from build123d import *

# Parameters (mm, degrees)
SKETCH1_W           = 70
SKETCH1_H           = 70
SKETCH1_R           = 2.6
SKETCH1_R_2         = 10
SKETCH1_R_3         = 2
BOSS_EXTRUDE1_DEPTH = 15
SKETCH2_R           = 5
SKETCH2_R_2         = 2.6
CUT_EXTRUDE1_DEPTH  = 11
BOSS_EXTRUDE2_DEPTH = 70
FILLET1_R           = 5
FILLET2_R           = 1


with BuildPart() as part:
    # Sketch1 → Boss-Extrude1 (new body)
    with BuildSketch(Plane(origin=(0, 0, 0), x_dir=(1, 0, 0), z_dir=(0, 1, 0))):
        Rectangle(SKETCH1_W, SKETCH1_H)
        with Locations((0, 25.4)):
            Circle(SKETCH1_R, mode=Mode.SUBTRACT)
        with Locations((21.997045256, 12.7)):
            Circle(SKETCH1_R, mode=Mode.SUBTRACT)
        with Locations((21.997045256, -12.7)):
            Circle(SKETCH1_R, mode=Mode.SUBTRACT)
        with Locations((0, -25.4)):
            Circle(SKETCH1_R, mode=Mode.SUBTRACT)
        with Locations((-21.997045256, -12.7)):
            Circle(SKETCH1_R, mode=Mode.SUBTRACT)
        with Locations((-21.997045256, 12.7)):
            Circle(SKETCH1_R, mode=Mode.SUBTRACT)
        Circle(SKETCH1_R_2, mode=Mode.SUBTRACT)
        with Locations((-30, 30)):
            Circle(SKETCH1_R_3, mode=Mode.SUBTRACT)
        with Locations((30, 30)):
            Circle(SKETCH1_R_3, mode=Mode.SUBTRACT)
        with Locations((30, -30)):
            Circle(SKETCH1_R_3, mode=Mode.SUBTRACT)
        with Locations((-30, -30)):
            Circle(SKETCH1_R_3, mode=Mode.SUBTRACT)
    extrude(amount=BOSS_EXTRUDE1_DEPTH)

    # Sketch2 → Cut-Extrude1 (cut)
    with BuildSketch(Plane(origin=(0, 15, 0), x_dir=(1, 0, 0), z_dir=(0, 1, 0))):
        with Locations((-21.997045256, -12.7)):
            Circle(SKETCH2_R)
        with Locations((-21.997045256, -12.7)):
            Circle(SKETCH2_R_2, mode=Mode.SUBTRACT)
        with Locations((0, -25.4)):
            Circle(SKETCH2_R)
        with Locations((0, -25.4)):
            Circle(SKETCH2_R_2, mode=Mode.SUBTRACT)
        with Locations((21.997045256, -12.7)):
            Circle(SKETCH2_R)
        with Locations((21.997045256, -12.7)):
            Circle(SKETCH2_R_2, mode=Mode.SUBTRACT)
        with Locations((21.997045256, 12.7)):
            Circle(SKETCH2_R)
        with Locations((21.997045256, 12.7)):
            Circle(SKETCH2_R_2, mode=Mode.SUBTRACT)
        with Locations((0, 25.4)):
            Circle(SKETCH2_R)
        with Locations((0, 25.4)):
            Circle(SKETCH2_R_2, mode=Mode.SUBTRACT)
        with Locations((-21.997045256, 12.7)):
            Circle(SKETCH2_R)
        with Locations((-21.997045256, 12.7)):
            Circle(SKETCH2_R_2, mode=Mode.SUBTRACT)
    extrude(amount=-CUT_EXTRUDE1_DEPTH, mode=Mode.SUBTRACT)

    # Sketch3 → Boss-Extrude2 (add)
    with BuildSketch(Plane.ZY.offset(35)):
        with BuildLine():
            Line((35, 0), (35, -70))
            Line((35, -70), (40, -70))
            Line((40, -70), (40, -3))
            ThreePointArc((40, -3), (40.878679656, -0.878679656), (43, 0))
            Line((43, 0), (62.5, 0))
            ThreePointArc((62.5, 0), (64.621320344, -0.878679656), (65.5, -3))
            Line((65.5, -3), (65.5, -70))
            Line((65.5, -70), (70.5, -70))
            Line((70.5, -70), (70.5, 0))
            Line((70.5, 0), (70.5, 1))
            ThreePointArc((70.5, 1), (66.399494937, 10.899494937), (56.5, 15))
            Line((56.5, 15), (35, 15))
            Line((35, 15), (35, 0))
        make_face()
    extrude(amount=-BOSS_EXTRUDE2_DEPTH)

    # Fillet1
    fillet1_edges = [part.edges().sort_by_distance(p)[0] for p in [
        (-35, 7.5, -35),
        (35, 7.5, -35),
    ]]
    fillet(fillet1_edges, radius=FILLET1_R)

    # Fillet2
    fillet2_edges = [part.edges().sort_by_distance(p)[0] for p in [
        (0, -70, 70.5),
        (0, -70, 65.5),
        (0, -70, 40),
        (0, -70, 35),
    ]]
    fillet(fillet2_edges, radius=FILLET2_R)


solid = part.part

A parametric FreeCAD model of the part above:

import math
import FreeCAD as App
import Part
import Sketcher


def edges_at(feature, points):
    """Names of the edges that pass closest to the given points."""
    edges = feature.Shape.Edges
    near = lambda p: min(range(len(edges)), key=lambda i: edges[i].distToShape(Part.Vertex(*p))[0])
    return sorted({f"Edge{near(p) + 1}" for p in points})

doc = App.newDocument("Part")
body = doc.addObject("PartDesign::Body", "Body")

# Sketch on XZ plane
sketch1 = body.newObject("Sketcher::SketchObject", "Sketch")
sketch1.AttachmentSupport = (doc.getObject("XZ_Plane"), [""])
sketch1.MapMode = "FlatFace"
sketch1.addGeometry([
    Part.LineSegment(App.Vector(-35, -35, 0), App.Vector(-35, 35, 0)),  # 0
    Part.LineSegment(App.Vector(-35, 35, 0), App.Vector(35, 35, 0)),  # 1
    Part.LineSegment(App.Vector(35, 35, 0), App.Vector(35, -35, 0)),  # 2
    Part.LineSegment(App.Vector(35, -35, 0), App.Vector(-35, -35, 0)),  # 3
    Part.Circle(App.Vector(-30, 30, 0), App.Vector(0, 0, 1), 2),  # 4
    Part.Circle(App.Vector(-22, 12.7, 0), App.Vector(0, 0, 1), 2.6),  # 5
    Part.Circle(App.Vector(0, 25.4, 0), App.Vector(0, 0, 1), 2.6),  # 6
    Part.Circle(App.Vector(30, 30, 0), App.Vector(0, 0, 1), 2),  # 7
    Part.Circle(App.Vector(22, 12.7, 0), App.Vector(0, 0, 1), 2.6),  # 8
    Part.Circle(App.Vector(-22, -12.7, 0), App.Vector(0, 0, 1), 2.6),  # 9
    Part.Circle(App.Vector(-30, -30, 0), App.Vector(0, 0, 1), 2),  # 10
    Part.Circle(App.Vector(0, 0, 0), App.Vector(0, 0, 1), 10),  # 11
    Part.Circle(App.Vector(22, -12.7, 0), App.Vector(0, 0, 1), 2.6),  # 12
    Part.Circle(App.Vector(0, -25.4, 0), App.Vector(0, 0, 1), 2.6),  # 13
    Part.Circle(App.Vector(30, -30, 0), App.Vector(0, 0, 1), 2),  # 14
], False)
sketch1.addConstraint([
    Sketcher.Constraint("Coincident", 0, 2, 1, 1),
    Sketcher.Constraint("Coincident", 1, 2, 2, 1),
    Sketcher.Constraint("Coincident", 2, 2, 3, 1),
    Sketcher.Constraint("Coincident", 3, 2, 0, 1),
    Sketcher.Constraint("Vertical", 0),
    Sketcher.Constraint("Horizontal", 1),
    Sketcher.Constraint("Vertical", 2),
    Sketcher.Constraint("Horizontal", 3),
    Sketcher.Constraint("Coincident", 11, 3, -1, 1),
    Sketcher.Constraint("Equal", 5, 6),
    Sketcher.Constraint("Equal", 4, 7),
    Sketcher.Constraint("Equal", 6, 8),
    Sketcher.Constraint("Equal", 8, 9),
    Sketcher.Constraint("Equal", 7, 10),
    Sketcher.Constraint("Equal", 9, 12),
    Sketcher.Constraint("Equal", 12, 13),
    Sketcher.Constraint("Equal", 10, 14),
    Sketcher.Constraint("Symmetric", 8, 3, 9, 3, -1, 1),
    Sketcher.Constraint("Symmetric", 7, 3, 10, 3, -1, 1),
    Sketcher.Constraint("Symmetric", 5, 3, 12, 3, -1, 1),
    Sketcher.Constraint("Symmetric", 6, 3, 13, 3, -1, 1),
    Sketcher.Constraint("Symmetric", 4, 3, 14, 3, -1, 1),
    Sketcher.Constraint("Symmetric", 0, 2, 2, 2, -1, 1),
    Sketcher.Constraint("Symmetric", 4, 3, 7, 3, -2),
    Sketcher.Constraint("Symmetric", 5, 3, 8, 3, -2),
    Sketcher.Constraint("PointOnObject", 6, 3, -2),
    Sketcher.Constraint("Equal", 3, 0),
    Sketcher.Constraint("Diameter", 4, 4.0),
    Sketcher.Constraint("Diameter", 11, 20.0),
    Sketcher.Constraint("Diameter", 5, 5.2),
    Sketcher.Constraint("DistanceX", 1, 1, 1, 2, 70.0),
    Sketcher.Constraint("DistanceX", 4, 3, -1, 1, 30.0),
    Sketcher.Constraint("DistanceY", -1, 1, 4, 3, 30.0),
    Sketcher.Constraint("DistanceY", -1, 1, 5, 3, 12.7),
    Sketcher.Constraint("DistanceY", -1, 1, 6, 3, 25.4),
    Sketcher.Constraint("DistanceX", 5, 3, 8, 3, 43.994091),
])
pad1 = body.newObject("PartDesign::Pad", "Pad")
pad1.Profile = sketch1
pad1.Length = 15
pad1.Reversed = True

# Sketch on XZ plane
sketch2 = body.newObject("Sketcher::SketchObject", "Sketch001")
sketch2.AttachmentSupport = (doc.getObject("XZ_Plane"), [""])
sketch2.MapMode = "FlatFace"
sketch2.AttachmentOffset = App.Placement(App.Vector(0, 0, -15), App.Rotation())
sketch2.addGeometry([
    Part.Circle(App.Vector(-22, 12.7, 0), App.Vector(0, 0, 1), 5),  # 0
    Part.Circle(App.Vector(-22, 12.7, 0), App.Vector(0, 0, 1), 2.6),  # 1
    Part.Circle(App.Vector(0, 25.4, 0), App.Vector(0, 0, 1), 5),  # 2
    Part.Circle(App.Vector(0, 25.4, 0), App.Vector(0, 0, 1), 2.6),  # 3
    Part.Circle(App.Vector(22, 12.7, 0), App.Vector(0, 0, 1), 5),  # 4
    Part.Circle(App.Vector(22, 12.7, 0), App.Vector(0, 0, 1), 2.6),  # 5
    Part.Circle(App.Vector(22, -12.7, 0), App.Vector(0, 0, 1), 5),  # 6
    Part.Circle(App.Vector(22, -12.7, 0), App.Vector(0, 0, 1), 2.6),  # 7
    Part.Circle(App.Vector(0, -25.4, 0), App.Vector(0, 0, 1), 5),  # 8
    Part.Circle(App.Vector(0, -25.4, 0), App.Vector(0, 0, 1), 2.6),  # 9
    Part.Circle(App.Vector(-22, -12.7, 0), App.Vector(0, 0, 1), 5),  # 10
    Part.Circle(App.Vector(-22, -12.7, 0), App.Vector(0, 0, 1), 2.6),  # 11
], False)
sketch2.addConstraint([
    Sketcher.Constraint("Coincident", 1, 3, 0, 3),
    Sketcher.Constraint("Coincident", 3, 3, 2, 3),
    Sketcher.Constraint("Coincident", 5, 3, 4, 3),
    Sketcher.Constraint("Coincident", 7, 3, 6, 3),
    Sketcher.Constraint("Coincident", 9, 3, 8, 3),
    Sketcher.Constraint("Coincident", 11, 3, 10, 3),
    Sketcher.Constraint("Equal", 0, 2),
    Sketcher.Constraint("Equal", 1, 3),
    Sketcher.Constraint("Equal", 2, 4),
    Sketcher.Constraint("Equal", 3, 5),
    Sketcher.Constraint("Equal", 4, 6),
    Sketcher.Constraint("Equal", 5, 7),
    Sketcher.Constraint("Equal", 6, 8),
    Sketcher.Constraint("Equal", 7, 9),
    Sketcher.Constraint("Equal", 8, 10),
    Sketcher.Constraint("Equal", 9, 11),
    Sketcher.Constraint("Symmetric", 0, 3, 6, 3, -1, 1),
    Sketcher.Constraint("Symmetric", 2, 3, 8, 3, -1, 1),
    Sketcher.Constraint("Symmetric", 4, 3, 10, 3, -1, 1),
    Sketcher.Constraint("Symmetric", 0, 3, 4, 3, -2),
    Sketcher.Constraint("PointOnObject", 2, 3, -2),
    Sketcher.Constraint("Diameter", 0, 10.0),
    Sketcher.Constraint("Diameter", 1, 5.2),
    Sketcher.Constraint("DistanceY", -1, 1, 0, 3, 12.7),
    Sketcher.Constraint("DistanceY", -1, 1, 2, 3, 25.4),
    Sketcher.Constraint("DistanceX", 0, 3, 4, 3, 43.994091),
])
pocket1 = body.newObject("PartDesign::Pocket", "Pocket")
pocket1.Profile = sketch2
pocket1.Length = 11
pocket1.Reversed = True

# Sketch on YZ plane
sketch3 = body.newObject("Sketcher::SketchObject", "Sketch002")
sketch3.AttachmentSupport = (doc.getObject("YZ_Plane"), [""])
sketch3.MapMode = "FlatFace"
sketch3.AttachmentOffset = App.Placement(App.Vector(0, 0, -35), App.Rotation())
sketch3.addGeometry([
    Part.LineSegment(App.Vector(-70, 35, 0), App.Vector(-70, 40, 0)),  # 0
    Part.LineSegment(App.Vector(-70, 40, 0), App.Vector(-3, 40, 0)),  # 1
    Part.ArcOfCircle(Part.Circle(App.Vector(-3, 43, 0), App.Vector(0, 0, 1), 3), math.radians(-90), math.radians(0)),  # 2
    Part.LineSegment(App.Vector(0, 43, 0), App.Vector(0, 62.5, 0)),  # 3
    Part.ArcOfCircle(Part.Circle(App.Vector(-3, 62.5, 0), App.Vector(0, 0, 1), 3), math.radians(0), math.radians(90)),  # 4
    Part.LineSegment(App.Vector(-3, 65.5, 0), App.Vector(-70, 65.5, 0)),  # 5
    Part.LineSegment(App.Vector(-70, 65.5, 0), App.Vector(-70, 70.5, 0)),  # 6
    Part.LineSegment(App.Vector(-70, 70.5, 0), App.Vector(1, 70.5, 0)),  # 7
    Part.ArcOfCircle(Part.Circle(App.Vector(1, 56.5, 0), App.Vector(0, 0, 1), 14), math.radians(0), math.radians(90)),  # 8
    Part.LineSegment(App.Vector(15, 56.5, 0), App.Vector(15, 35, 0)),  # 9
    Part.LineSegment(App.Vector(15, 35, 0), App.Vector(-70, 35, 0)),  # 10
], False)
sketch3.addConstraint([
    Sketcher.Constraint("Coincident", 0, 2, 1, 1),
    Sketcher.Constraint("Tangent", 1, 2, 2, 1),
    Sketcher.Constraint("Tangent", 2, 2, 3, 1),
    Sketcher.Constraint("Tangent", 3, 2, 4, 1),
    Sketcher.Constraint("Tangent", 4, 2, 5, 1),
    Sketcher.Constraint("Coincident", 5, 2, 6, 1),
    Sketcher.Constraint("Coincident", 6, 2, 7, 1),
    Sketcher.Constraint("Tangent", 7, 2, 8, 2),
    Sketcher.Constraint("Tangent", 8, 1, 9, 1),
    Sketcher.Constraint("Coincident", 9, 2, 10, 1),
    Sketcher.Constraint("Coincident", 10, 2, 0, 1),
    Sketcher.Constraint("Vertical", 0),
    Sketcher.Constraint("Horizontal", 1),
    Sketcher.Constraint("Vertical", 3),
    Sketcher.Constraint("Horizontal", 5),
    Sketcher.Constraint("Vertical", 6),
    Sketcher.Constraint("Horizontal", 7),
    Sketcher.Constraint("Vertical", 9),
    Sketcher.Constraint("Horizontal", 10),
    Sketcher.Constraint("Equal", 2, 4),
    Sketcher.Constraint("PointOnObject", 2, 2, -2),
    Sketcher.Constraint("Vertical", 0, 2, 5, 2),
    Sketcher.Constraint("Equal", 0, 6),
    Sketcher.Constraint("Radius", 2, 3.0),
    Sketcher.Constraint("Radius", 8, 14.0),
    Sketcher.Constraint("DistanceX", 1, 1, 1, 2, 67.0),
    Sketcher.Constraint("DistanceX", 7, 1, 7, 2, 71.0),
    Sketcher.Constraint("DistanceY", 0, 1, 0, 2, 5.0),
    Sketcher.Constraint("DistanceY", 3, 1, 3, 2, 19.5),
    Sketcher.Constraint("DistanceY", -1, 1, 2, 3, 43.0),
])
pad2 = body.newObject("PartDesign::Pad", "Pad001")
pad2.Profile = sketch3
pad2.Length = 70
doc.recompute()

fillet = body.newObject("PartDesign::Fillet", "Fillet")
fillet.Base = (pad2, edges_at(pad2, [(-35, 7.5, -35), (35, 7.5, -35)]))
fillet.Radius = 5
doc.recompute()

fillet2 = body.newObject("PartDesign::Fillet", "Fillet001")
fillet2.Base = (fillet, edges_at(fillet, [
    (0, -70, 70.5),
    (0, -70, 65.5),
    (0, -70, 40),
    (0, -70, 35),
]))
fillet2.Radius = 1

doc.recompute()
